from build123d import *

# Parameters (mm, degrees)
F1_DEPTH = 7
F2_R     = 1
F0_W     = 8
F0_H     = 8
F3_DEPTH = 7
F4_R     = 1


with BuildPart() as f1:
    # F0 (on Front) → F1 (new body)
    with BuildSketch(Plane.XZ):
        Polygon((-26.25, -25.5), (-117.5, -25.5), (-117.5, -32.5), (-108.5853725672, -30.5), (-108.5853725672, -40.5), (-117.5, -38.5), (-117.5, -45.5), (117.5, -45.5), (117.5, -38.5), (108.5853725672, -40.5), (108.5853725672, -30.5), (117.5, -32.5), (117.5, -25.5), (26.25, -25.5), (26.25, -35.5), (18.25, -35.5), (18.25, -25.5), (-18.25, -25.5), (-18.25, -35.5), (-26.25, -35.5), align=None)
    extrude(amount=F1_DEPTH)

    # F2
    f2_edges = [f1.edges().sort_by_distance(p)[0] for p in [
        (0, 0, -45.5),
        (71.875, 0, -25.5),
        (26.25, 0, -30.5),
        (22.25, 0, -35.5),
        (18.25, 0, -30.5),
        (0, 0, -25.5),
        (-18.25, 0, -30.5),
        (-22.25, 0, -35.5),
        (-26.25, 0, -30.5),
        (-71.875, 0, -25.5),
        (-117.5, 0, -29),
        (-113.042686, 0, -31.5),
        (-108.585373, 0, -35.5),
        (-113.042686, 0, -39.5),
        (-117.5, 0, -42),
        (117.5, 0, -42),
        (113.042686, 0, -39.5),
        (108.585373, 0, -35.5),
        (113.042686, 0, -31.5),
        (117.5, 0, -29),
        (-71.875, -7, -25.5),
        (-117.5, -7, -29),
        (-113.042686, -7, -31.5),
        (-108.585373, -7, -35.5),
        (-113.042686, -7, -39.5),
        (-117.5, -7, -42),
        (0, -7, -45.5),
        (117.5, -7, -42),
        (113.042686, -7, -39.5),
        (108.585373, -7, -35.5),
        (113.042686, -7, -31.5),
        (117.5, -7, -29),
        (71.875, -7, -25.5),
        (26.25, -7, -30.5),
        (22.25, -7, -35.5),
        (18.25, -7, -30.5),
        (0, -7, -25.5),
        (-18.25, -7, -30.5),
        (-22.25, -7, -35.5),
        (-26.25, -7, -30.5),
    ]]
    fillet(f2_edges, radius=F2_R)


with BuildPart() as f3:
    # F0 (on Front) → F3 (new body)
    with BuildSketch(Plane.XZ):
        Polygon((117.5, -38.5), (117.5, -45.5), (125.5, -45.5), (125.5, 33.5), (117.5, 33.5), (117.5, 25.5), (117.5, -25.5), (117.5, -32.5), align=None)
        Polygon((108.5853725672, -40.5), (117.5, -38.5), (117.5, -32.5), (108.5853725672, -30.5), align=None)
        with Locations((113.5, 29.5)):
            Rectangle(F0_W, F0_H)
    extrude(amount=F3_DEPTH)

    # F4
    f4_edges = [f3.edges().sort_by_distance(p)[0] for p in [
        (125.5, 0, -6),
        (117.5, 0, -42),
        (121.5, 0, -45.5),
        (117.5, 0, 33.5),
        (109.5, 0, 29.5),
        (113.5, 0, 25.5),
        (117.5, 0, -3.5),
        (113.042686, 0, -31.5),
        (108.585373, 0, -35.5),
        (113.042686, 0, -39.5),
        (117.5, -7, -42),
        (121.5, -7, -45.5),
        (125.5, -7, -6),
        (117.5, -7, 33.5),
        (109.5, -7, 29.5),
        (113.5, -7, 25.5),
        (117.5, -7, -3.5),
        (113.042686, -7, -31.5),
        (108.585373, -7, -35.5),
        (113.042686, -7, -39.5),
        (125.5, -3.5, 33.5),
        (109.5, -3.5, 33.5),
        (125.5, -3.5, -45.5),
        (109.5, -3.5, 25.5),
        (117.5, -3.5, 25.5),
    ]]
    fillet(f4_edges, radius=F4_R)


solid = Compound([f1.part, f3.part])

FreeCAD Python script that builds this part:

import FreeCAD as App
import Part
import Sketcher
from FreeCAD import Vector
Q = App.Units.Quantity


def edges_at(feature, points):
    """Names of the edges that pass closest to the given points."""
    edges = feature.Shape.Edges
    near = lambda p: min(range(len(edges)), key=lambda i: edges[i].distToShape(Part.Vertex(*p))[0])
    return sorted({f"Edge{near(p) + 1}" for p in points})

doc = App.newDocument("Part")
body = doc.addObject("PartDesign::Body", "Body")

# Sketch on XZ plane
sketch1 = doc.addObject("Sketcher::SketchObject", "Sketch")
body.addObject(sketch1)
sketch1.AttachmentSupport = (doc.XZ_Plane, [""])
sketch1.MapMode = "FlatFace"
sketch1.addGeometry([
    Part.LineSegment(Vector(-26, -26, 0), Vector(-118, -26, 0)),  # 0
    Part.LineSegment(Vector(-118, -26, 0), Vector(-118, -32, 0)),  # 1
    Part.LineSegment(Vector(-118, -32, 0), Vector(-109, -30, 0)),  # 2
    Part.LineSegment(Vector(-109, -30, 0), Vector(-109, -40, 0)),  # 3
    Part.LineSegment(Vector(-109, -40, 0), Vector(-118, -38, 0)),  # 4
    Part.LineSegment(Vector(-118, -38, 0), Vector(-118, -46, 0)),  # 5
    Part.LineSegment(Vector(-118, -46, 0), Vector(118, -46, 0)),  # 6
    Part.LineSegment(Vector(118, -46, 0), Vector(118, -38, 0)),  # 7
    Part.LineSegment(Vector(118, -38, 0), Vector(109, -40, 0)),  # 8
    Part.LineSegment(Vector(109, -40, 0), Vector(109, -30, 0)),  # 9
    Part.LineSegment(Vector(109, -30, 0), Vector(118, -32, 0)),  # 10
    Part.LineSegment(Vector(118, -32, 0), Vector(118, -26, 0)),  # 11
    Part.LineSegment(Vector(118, -26, 0), Vector(26, -26, 0)),  # 12
    Part.LineSegment(Vector(26, -26, 0), Vector(26, -36, 0)),  # 13
    Part.LineSegment(Vector(26, -36, 0), Vector(18, -36, 0)),  # 14
    Part.LineSegment(Vector(18, -36, 0), Vector(18, -26, 0)),  # 15
    Part.LineSegment(Vector(18, -26, 0), Vector(-18, -26, 0)),  # 16
    Part.LineSegment(Vector(-18, -26, 0), Vector(-18, -36, 0)),  # 17
    Part.LineSegment(Vector(-18, -36, 0), Vector(-26, -36, 0)),  # 18
    Part.LineSegment(Vector(-26, -36, 0), Vector(-26, -26, 0)),  # 19
], False)
sketch1.addConstraint([
    Sketcher.Constraint("Coincident", 0, 2, 1, 1),
    Sketcher.Constraint("Coincident", 1, 2, 2, 1),
    Sketcher.Constraint("Coincident", 2, 2, 3, 1),
    Sketcher.Constraint("Coincident", 3, 2, 4, 1),
    Sketcher.Constraint("Coincident", 4, 2, 5, 1),
    Sketcher.Constraint("Coincident", 5, 2, 6, 1),
    Sketcher.Constraint("Coincident", 6, 2, 7, 1),
    Sketcher.Constraint("Coincident", 7, 2, 8, 1),
    Sketcher.Constraint("Coincident", 8, 2, 9, 1),
    Sketcher.Constraint("Coincident", 9, 2, 10, 1),
    Sketcher.Constraint("Coincident", 10, 2, 11, 1),
    Sketcher.Constraint("Coincident", 11, 2, 12, 1),
    Sketcher.Constraint("Coincident", 12, 2, 13, 1),
    Sketcher.Constraint("Coincident", 13, 2, 14, 1),
    Sketcher.Constraint("Coincident", 14, 2, 15, 1),
    Sketcher.Constraint("Coincident", 15, 2, 16, 1),
    Sketcher.Constraint("Coincident", 16, 2, 17, 1),
    Sketcher.Constraint("Coincident", 17, 2, 18, 1),
    Sketcher.Constraint("Coincident", 18, 2, 19, 1),
    Sketcher.Constraint("Coincident", 19, 2, 0, 1),
    Sketcher.Constraint("Horizontal", 0),
    Sketcher.Constraint("Vertical", 1),
    Sketcher.Constraint("Vertical", 3),
    Sketcher.Constraint("Vertical", 5),
    Sketcher.Constraint("Horizontal", 6),
    Sketcher.Constraint("Vertical", 7),
    Sketcher.Constraint("Vertical", 9),
    Sketcher.Constraint("Vertical", 11),
    Sketcher.Constraint("Horizontal", 12),
    Sketcher.Constraint("Vertical", 13),
    Sketcher.Constraint("Horizontal", 14),
    Sketcher.Constraint("Vertical", 15),
    Sketcher.Constraint("Horizontal", 16),
    Sketcher.Constraint("Vertical", 17),
    Sketcher.Constraint("Horizontal", 18),
    Sketcher.Constraint("Vertical", 19),
    Sketcher.Constraint("Symmetric", 4, 2, 7, 2, -2),
    Sketcher.Constraint("Symmetric", 3, 2, 8, 2, -2),
    Sketcher.Constraint("Symmetric", 1, 2, 10, 2, -2),
    Sketcher.Constraint("Symmetric", 14, 2, 17, 2, -2),
    Sketcher.Constraint("Symmetric", 12, 2, 19, 2, -2),
    Sketcher.Constraint("Parallel", 2, 8),
    Sketcher.Constraint("Parallel", 4, 10),
    Sketcher.Constraint("Horizontal", 12, 2, 15, 2),
    Sketcher.Constraint("Vertical", 1, 2, 4, 2),
    Sketcher.Constraint("Equal", 1, 5),
    Sketcher.Constraint("Equal", 9, 13),
    Sketcher.Constraint("DistanceX", 6, 1, 6, 2, Q("235 mm")),
    Sketcher.Constraint("DistanceX", 14, 2, 14, 1, Q("8 mm")),
    Sketcher.Constraint("DistanceY", 1, 2, 1, 1, Q("7 mm")),
    Sketcher.Constraint("DistanceY", 3, 2, 3, 1, Q("10 mm")),
    Sketcher.Constraint("DistanceX", 16, 2, 16, 1, Q("36.5 mm")),
    Sketcher.Constraint("DistanceY", 1, 2, 2, 2, Q("2 mm")),
    Sketcher.Constraint("DistanceY", 0, 2, -1, 1, Q("25.5 mm")),
    Sketcher.Constraint("Distance", 2, Q("9.136224 mm")),
])
pad1 = doc.addObject("PartDesign::Pad", "Pad")
body.addObject(pad1)
pad1.Profile = sketch1
pad1.Length = 7
doc.recompute()

fillet = doc.addObject("PartDesign::Fillet", "Fillet")
body.addObject(fillet)
fillet.Base = (pad1, edges_at(pad1, [
    (0, 0, -45.5),
    (71.875, 0, -25.5),
    (26.25, 0, -30.5),
    (22.25, 0, -35.5),
    (18.25, 0, -30.5),
    (0, 0, -25.5),
    (-18.25, 0, -30.5),
    (-22.25, 0, -35.5),
    (-26.25, 0, -30.5),
    (-71.875, 0, -25.5),
    (-117.5, 0, -29),
    (-113.043, 0, -31.5),
    (-108.585, 0, -35.5),
    (-113.043, 0, -39.5),
    (-117.5, 0, -42),
    (117.5, 0, -42),
    (113.043, 0, -39.5),
    (108.585, 0, -35.5),
    (113.043, 0, -31.5),
    (117.5, 0, -29),
    (-71.875, -7, -25.5),
    (-117.5, -7, -29),
    (-113.043, -7, -31.5),
    (-108.585, -7, -35.5),
    (-113.043, -7, -39.5),
    (-117.5, -7, -42),
    (0, -7, -45.5),
    (117.5, -7, -42),
    (113.043, -7, -39.5),
    (108.585, -7, -35.5),
    (113.043, -7, -31.5),
    (117.5, -7, -29),
    (71.875, -7, -25.5),
    (26.25, -7, -30.5),
    (22.25, -7, -35.5),
    (18.25, -7, -30.5),
    (0, -7, -25.5),
    (-18.25, -7, -30.5),
    (-22.25, -7, -35.5),
    (-26.25, -7, -30.5),
]))
fillet.Radius = 1
body2 = doc.addObject("PartDesign::Body", "Body001")

# Sketch on XZ plane
sketch2 = doc.addObject("Sketcher::SketchObject", "Sketch001")
body2.addObject(sketch2)
sketch2.AttachmentSupport = (doc.getObject("XZ_Plane001"), [""])
sketch2.MapMode = "FlatFace"
sketch2.addGeometry([
    Part.LineSegment(Vector(118, -46, 0), Vector(126, -46, 0)),  # 0
    Part.LineSegment(Vector(126, -46, 0), Vector(126, 34, 0)),  # 1
    Part.LineSegment(Vector(126, 34, 0), Vector(110, 34, 0)),  # 2
    Part.LineSegment(Vector(110, 34, 0), Vector(110, 26, 0)),  # 3
    Part.LineSegment(Vector(110, 26, 0), Vector(118, 26, 0)),  # 4
    Part.LineSegment(Vector(118, 26, 0), Vector(118, -32, 0)),  # 5
    Part.LineSegment(Vector(118, -32, 0), Vector(109, -30, 0)),  # 6
    Part.LineSegment(Vector(109, -30, 0), Vector(109, -40, 0)),  # 7
    Part.LineSegment(Vector(109, -40, 0), Vector(118, -38, 0)),  # 8
    Part.LineSegment(Vector(118, -38, 0), Vector(118, -46, 0)),  # 9
], False)
sketch2.addConstraint([
    Sketcher.Constraint("Coincident", 0, 2, 1, 1),
    Sketcher.Constraint("Coincident", 1, 2, 2, 1),
    Sketcher.Constraint("Coincident", 2, 2, 3, 1),
    Sketcher.Constraint("Coincident", 3, 2, 4, 1),
    Sketcher.Constraint("Coincident", 4, 2, 5, 1),
    Sketcher.Constraint("Coincident", 5, 2, 6, 1),
    Sketcher.Constraint("Coincident", 6, 2, 7, 1),
    Sketcher.Constraint("Coincident", 7, 2, 8, 1),
    Sketcher.Constraint("Coincident", 8, 2, 9, 1),
    Sketcher.Constraint("Coincident", 9, 2, 0, 1),
    Sketcher.Constraint("Horizontal", 0),
    Sketcher.Constraint("Vertical", 1),
    Sketcher.Constraint("Horizontal", 2),
    Sketcher.Constraint("Vertical", 3),
    Sketcher.Constraint("Horizontal", 4),
    Sketcher.Constraint("Vertical", 5),
    Sketcher.Constraint("Vertical", 7),
    Sketcher.Constraint("Vertical", 9),
    Sketcher.Constraint("Vertical", 5, 2, 8, 2),
    Sketcher.Constraint("Equal", 0, 4),
    Sketcher.Constraint("Equal", 4, 3),
    Sketcher.Constraint("Equal", 6, 8),
    Sketcher.Constraint("DistanceX", 0, 1, 0, 2, Q("8 mm")),
    Sketcher.Constraint("DistanceY", 1, 1, 1, 2, Q("79 mm")),
    Sketcher.Constraint("DistanceY", 5, 2, 5, 1, Q("58 mm")),
    Sketcher.Constraint("DistanceY", 7, 2, 7, 1, Q("10 mm")),
    Sketcher.Constraint("DistanceY", 9, 2, 9, 1, Q("7 mm")),
    Sketcher.Constraint("DistanceX", -1, 1, 0, 2, Q("125.5 mm")),
    Sketcher.Constraint("DistanceY", 0, 2, -1, 1, Q("45.5 mm")),
    Sketcher.Constraint("Distance", 6, Q("9.136224 mm")),
])
pad2 = doc.addObject("PartDesign::Pad", "Pad001")
body2.addObject(pad2)
pad2.Profile = sketch2
pad2.Length = 7
doc.recompute()

fillet2 = doc.addObject("PartDesign::Fillet", "Fillet001")
body2.addObject(fillet2)
fillet2.Base = (pad2, edges_at(pad2, [
    (125.5, 0, -6),
    (117.5, 0, -42),
    (121.5, 0, -45.5),
    (117.5, 0, 33.5),
    (109.5, 0, 29.5),
    (113.5, 0, 25.5),
    (117.5, 0, -3.5),
    (113.043, 0, -31.5),
    (108.585, 0, -35.5),
    (113.043, 0, -39.5),
    (117.5, -7, -42),
    (121.5, -7, -45.5),
    (125.5, -7, -6),
    (117.5, -7, 33.5),
    (109.5, -7, 29.5),
    (113.5, -7, 25.5),
    (117.5, -7, -3.5),
    (113.043, -7, -31.5),
    (108.585, -7, -35.5),
    (113.043, -7, -39.5),
    (125.5, -3.5, 33.5),
    (109.5, -3.5, 33.5),
    (125.5, -3.5, -45.5),
    (109.5, -3.5, 25.5),
    (117.5, -3.5, 25.5),
]))
fillet2.Radius = 1

doc.recompute()
